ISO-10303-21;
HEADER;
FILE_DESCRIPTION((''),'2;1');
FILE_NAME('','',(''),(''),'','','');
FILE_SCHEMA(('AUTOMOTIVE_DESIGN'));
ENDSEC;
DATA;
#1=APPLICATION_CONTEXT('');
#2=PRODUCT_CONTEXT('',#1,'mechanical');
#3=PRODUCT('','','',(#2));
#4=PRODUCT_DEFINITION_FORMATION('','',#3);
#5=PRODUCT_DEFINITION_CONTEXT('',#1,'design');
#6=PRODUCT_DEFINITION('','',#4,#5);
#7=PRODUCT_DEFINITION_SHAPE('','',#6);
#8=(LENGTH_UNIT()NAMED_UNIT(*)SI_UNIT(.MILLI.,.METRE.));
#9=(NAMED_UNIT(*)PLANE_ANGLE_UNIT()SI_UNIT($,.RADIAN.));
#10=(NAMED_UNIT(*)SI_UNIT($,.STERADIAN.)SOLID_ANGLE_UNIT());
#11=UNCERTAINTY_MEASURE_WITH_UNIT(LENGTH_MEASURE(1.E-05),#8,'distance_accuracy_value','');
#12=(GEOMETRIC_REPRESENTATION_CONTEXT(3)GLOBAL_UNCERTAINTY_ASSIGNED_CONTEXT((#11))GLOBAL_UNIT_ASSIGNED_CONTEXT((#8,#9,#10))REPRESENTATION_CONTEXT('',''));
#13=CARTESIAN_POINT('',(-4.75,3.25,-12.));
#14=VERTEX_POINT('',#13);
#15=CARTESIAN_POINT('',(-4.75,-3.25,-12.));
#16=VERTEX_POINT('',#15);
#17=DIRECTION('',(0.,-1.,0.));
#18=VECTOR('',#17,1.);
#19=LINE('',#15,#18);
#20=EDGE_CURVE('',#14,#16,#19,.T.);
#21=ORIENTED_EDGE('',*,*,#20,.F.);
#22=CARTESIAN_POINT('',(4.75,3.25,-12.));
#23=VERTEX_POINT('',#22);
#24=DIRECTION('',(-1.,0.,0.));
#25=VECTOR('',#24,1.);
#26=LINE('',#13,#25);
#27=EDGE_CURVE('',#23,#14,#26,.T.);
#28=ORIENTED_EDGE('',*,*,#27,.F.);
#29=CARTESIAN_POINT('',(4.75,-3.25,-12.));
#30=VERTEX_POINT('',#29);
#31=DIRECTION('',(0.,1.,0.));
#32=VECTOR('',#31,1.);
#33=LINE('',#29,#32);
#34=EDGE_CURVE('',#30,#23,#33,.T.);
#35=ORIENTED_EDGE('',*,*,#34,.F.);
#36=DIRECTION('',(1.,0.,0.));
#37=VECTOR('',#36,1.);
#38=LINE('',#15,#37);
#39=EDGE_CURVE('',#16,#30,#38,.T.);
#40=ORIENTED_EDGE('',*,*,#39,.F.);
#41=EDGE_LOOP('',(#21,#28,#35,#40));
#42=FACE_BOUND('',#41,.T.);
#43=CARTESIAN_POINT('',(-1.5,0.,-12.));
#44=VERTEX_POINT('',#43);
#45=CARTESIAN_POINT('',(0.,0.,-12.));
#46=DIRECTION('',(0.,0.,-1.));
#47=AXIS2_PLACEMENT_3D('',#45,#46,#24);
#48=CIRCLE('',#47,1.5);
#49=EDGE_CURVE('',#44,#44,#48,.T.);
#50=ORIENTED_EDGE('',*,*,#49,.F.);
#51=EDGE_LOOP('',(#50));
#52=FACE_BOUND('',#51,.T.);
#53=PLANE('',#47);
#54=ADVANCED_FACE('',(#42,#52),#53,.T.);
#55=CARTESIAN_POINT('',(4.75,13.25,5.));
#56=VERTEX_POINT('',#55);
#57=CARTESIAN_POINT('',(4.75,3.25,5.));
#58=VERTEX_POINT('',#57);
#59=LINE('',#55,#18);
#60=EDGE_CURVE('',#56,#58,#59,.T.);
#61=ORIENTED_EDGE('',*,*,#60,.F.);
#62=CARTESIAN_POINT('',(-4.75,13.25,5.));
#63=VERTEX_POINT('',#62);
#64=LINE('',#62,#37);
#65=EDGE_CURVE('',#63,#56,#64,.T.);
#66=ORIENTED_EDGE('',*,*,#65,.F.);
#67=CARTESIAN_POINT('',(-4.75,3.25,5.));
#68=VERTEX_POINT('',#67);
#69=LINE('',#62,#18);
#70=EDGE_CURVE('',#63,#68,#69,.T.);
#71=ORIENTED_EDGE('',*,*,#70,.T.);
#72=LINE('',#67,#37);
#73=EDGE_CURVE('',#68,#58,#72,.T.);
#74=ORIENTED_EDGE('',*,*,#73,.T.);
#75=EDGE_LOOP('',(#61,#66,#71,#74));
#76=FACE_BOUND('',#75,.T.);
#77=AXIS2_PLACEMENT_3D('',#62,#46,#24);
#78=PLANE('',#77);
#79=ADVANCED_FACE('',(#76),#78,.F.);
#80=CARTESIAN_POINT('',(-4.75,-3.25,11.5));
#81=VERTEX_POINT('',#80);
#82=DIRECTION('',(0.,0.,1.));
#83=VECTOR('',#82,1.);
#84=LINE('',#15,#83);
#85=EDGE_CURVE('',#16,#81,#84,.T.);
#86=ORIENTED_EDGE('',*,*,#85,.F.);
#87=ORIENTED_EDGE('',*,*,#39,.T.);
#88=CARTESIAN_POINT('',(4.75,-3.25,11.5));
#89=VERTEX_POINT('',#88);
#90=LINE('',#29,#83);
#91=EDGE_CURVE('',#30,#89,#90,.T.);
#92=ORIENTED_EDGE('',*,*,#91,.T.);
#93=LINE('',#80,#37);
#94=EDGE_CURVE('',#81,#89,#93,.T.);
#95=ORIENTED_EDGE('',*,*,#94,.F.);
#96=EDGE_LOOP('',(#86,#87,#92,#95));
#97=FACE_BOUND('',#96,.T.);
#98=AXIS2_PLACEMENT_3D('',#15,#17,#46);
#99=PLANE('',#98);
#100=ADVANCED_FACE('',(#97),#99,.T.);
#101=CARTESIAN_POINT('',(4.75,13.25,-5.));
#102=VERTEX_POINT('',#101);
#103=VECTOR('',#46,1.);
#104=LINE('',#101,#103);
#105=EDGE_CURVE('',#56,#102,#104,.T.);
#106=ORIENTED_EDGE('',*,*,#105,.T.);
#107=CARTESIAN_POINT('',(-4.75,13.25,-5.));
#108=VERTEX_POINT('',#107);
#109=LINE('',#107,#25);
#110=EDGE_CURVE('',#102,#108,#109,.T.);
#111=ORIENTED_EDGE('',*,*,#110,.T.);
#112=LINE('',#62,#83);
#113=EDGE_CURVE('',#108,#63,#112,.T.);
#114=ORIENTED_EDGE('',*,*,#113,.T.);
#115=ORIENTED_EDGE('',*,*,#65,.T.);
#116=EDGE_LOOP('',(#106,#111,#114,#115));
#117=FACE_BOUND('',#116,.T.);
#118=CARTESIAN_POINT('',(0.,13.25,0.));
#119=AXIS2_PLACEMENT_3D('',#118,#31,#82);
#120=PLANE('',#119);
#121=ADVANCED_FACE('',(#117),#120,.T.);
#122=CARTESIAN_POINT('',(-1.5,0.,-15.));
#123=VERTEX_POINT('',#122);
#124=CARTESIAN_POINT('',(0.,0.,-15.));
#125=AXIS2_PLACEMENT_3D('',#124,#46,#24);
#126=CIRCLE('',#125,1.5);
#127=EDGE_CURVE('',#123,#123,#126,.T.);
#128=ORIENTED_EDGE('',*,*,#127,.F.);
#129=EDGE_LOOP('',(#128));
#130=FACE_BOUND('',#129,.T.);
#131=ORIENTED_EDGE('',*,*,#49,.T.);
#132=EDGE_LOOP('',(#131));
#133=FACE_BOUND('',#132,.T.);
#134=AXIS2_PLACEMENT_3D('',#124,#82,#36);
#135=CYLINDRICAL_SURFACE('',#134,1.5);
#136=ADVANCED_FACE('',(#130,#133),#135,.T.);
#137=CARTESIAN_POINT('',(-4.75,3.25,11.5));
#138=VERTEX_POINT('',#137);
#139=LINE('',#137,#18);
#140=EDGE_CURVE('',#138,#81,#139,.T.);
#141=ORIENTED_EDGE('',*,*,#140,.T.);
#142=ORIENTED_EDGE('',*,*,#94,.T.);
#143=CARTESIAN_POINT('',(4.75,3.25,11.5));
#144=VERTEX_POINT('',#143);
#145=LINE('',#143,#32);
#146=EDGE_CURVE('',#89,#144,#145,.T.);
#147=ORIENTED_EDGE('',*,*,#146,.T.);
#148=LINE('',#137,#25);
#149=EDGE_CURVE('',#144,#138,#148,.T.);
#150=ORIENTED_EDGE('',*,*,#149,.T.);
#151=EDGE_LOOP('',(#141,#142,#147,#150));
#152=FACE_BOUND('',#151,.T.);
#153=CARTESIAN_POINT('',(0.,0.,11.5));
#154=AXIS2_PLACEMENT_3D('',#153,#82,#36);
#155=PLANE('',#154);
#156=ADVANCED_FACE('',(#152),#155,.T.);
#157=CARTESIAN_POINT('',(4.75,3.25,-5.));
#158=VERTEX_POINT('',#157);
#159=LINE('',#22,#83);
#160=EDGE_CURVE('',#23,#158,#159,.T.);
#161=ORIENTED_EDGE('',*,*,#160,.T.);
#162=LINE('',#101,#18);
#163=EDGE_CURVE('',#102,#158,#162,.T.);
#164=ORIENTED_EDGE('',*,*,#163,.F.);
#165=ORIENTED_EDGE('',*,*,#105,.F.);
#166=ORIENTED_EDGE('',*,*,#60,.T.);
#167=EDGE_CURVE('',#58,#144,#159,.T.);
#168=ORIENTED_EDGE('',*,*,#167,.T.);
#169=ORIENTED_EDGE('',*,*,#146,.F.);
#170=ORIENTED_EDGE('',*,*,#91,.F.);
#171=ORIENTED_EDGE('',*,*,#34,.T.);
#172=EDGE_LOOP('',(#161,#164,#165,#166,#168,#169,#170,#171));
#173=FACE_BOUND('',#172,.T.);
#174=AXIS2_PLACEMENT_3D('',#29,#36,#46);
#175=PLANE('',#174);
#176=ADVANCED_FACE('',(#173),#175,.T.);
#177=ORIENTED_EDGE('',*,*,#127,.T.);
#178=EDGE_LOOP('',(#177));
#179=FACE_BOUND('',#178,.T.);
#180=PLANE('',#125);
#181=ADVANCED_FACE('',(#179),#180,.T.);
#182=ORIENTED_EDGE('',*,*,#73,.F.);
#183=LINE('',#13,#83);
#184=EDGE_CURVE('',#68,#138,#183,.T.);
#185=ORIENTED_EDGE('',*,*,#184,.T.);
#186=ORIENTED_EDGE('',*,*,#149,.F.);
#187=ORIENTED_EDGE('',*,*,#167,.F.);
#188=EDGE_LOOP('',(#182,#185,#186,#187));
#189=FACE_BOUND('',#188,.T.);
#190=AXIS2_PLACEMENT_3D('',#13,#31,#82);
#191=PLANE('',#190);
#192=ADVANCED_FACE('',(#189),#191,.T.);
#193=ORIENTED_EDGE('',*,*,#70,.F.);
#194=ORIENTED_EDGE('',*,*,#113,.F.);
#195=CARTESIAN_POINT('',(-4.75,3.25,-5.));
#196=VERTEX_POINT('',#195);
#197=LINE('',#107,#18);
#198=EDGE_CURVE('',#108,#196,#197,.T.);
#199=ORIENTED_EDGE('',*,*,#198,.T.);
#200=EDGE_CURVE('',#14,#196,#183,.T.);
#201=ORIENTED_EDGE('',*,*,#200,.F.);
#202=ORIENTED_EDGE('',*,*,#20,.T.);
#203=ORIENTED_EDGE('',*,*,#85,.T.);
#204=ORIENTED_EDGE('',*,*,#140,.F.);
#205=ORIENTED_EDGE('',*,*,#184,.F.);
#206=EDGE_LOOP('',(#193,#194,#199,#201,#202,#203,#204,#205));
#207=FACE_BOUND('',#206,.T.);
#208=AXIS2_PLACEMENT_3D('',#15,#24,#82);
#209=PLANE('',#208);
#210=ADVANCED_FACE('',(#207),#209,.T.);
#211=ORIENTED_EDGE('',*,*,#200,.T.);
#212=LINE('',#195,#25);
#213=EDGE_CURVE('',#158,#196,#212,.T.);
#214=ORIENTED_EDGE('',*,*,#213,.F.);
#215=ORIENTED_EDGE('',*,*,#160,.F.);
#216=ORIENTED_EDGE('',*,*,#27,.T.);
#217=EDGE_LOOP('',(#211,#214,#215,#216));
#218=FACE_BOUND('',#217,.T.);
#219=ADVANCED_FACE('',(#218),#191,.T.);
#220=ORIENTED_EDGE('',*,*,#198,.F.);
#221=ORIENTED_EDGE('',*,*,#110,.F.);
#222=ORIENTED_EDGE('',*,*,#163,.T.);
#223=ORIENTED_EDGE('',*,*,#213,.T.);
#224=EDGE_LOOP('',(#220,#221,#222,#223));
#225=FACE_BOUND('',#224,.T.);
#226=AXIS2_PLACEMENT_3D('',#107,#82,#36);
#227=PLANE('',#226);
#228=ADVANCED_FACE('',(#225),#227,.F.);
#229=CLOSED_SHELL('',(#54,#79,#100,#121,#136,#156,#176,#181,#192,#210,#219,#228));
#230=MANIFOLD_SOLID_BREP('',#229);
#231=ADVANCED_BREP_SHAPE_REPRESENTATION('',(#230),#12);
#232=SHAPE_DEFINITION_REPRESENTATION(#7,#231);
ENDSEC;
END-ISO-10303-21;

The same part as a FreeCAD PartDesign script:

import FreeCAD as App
import Part
import Sketcher
from FreeCAD import Vector

doc = App.newDocument("Part")
body = doc.addObject("PartDesign::Body", "Body")

# Sketch on XY plane
sketch1 = body.newObject("Sketcher::SketchObject", "Sketch")
sketch1.AttachmentSupport = (doc.getObject("XY_Plane"), [""])
sketch1.MapMode = "FlatFace"
sketch1.addGeometry(Part.LineSegment(Vector(-4.75, 3.25, 0), Vector(-4.75, -3.25, 0)), False)
sketch1.addGeometry(Part.LineSegment(Vector(-4.75, -3.25, 0), Vector(4.75, -3.25, 0)), False)
sketch1.addGeometry(Part.LineSegment(Vector(4.75, -3.25, 0), Vector(4.75, 3.25, 0)), False)
sketch1.addGeometry(Part.LineSegment(Vector(4.75, 3.25, 0), Vector(-4.75, 3.25, 0)), False)
sketch1.addConstraint(Sketcher.Constraint("Coincident", 0, 2, 1, 1))
sketch1.addConstraint(Sketcher.Constraint("Coincident", 1, 2, 2, 1))
sketch1.addConstraint(Sketcher.Constraint("Coincident", 2, 2, 3, 1))
sketch1.addConstraint(Sketcher.Constraint("Coincident", 3, 2, 0, 1))
sketch1.addConstraint(Sketcher.Constraint("Vertical", 0))
sketch1.addConstraint(Sketcher.Constraint("Horizontal", 1))
sketch1.addConstraint(Sketcher.Constraint("Vertical", 2))
sketch1.addConstraint(Sketcher.Constraint("Horizontal", 3))
sketch1.addConstraint(Sketcher.Constraint("Symmetric", 0, 2, 2, 2, -1, 1))
sketch1.addConstraint(Sketcher.Constraint("DistanceX", 1, 1, 1, 2, 9.5))
sketch1.addConstraint(Sketcher.Constraint("DistanceY", 0, 2, 0, 1, 6.5))
pad1 = body.newObject("PartDesign::Pad", "Pad")
pad1.Profile = sketch1
pad1.Type = "TwoLengths"
pad1.Length = 11
pad1.Length2 = 12

# Sketch on XZ plane
sketch2 = body.newObject("Sketcher::SketchObject", "Sketch001")
sketch2.AttachmentSupport = (doc.getObject("XZ_Plane"), [""])
sketch2.MapMode = "FlatFace"
sketch2.AttachmentOffset = App.Placement(Vector(0, 0, -3.25), App.Rotation())
sketch2.addGeometry(Part.LineSegment(Vector(-4.75, -5, 0), Vector(-4.75, 5, 0)), False)
sketch2.addGeometry(Part.LineSegment(Vector(-4.75, 5, 0), Vector(4.75, 5, 0)), False)
sketch2.addGeometry(Part.LineSegment(Vector(4.75, 5, 0), Vector(4.75, -5, 0)), False)
sketch2.addGeometry(Part.LineSegment(Vector(4.75, -5, 0), Vector(-4.75, -5, 0)), False)
sketch2.addConstraint(Sketcher.Constraint("Coincident", 0, 2, 1, 1))
sketch2.addConstraint(Sketcher.Constraint("Coincident", 1, 2, 2, 1))
sketch2.addConstraint(Sketcher.Constraint("Coincident", 2, 2, 3, 1))
sketch2.addConstraint(Sketcher.Constraint("Coincident", 3, 2, 0, 1))
sketch2.addConstraint(Sketcher.Constraint("Vertical", 0))
sketch2.addConstraint(Sketcher.Constraint("Horizontal", 1))
sketch2.addConstraint(Sketcher.Constraint("Vertical", 2))
sketch2.addConstraint(Sketcher.Constraint("Horizontal", 3))
sketch2.addConstraint(Sketcher.Constraint("Symmetric", 0, 2, 2, 2, -1, 1))
sketch2.addConstraint(Sketcher.Constraint("DistanceY", 0, 1, 0, 2, 10.0))
sketch2.addConstraint(Sketcher.Constraint("DistanceX", 1, 1, 1, 2, 9.5))
pad2 = body.newObject("PartDesign::Pad", "Pad001")
pad2.Profile = sketch2
pad2.Length = 10
pad2.Reversed = True

# Sketch on XY plane
sketch3 = body.newObject("Sketcher::SketchObject", "Sketch002")
sketch3.AttachmentSupport = (doc.getObject("XY_Plane"), [""])
sketch3.MapMode = "FlatFace"
sketch3.AttachmentOffset = App.Placement(Vector(0, 0, -12), App.Rotation())
sketch3.addGeometry(Part.Circle(Vector(0, 0, 0), Vector(0, 0, 1), 1.5), False)
sketch3.addConstraint(Sketcher.Constraint("Coincident", 0, 3, -1, 1))
sketch3.addConstraint(Sketcher.Constraint("Diameter", 0, 3.0))
pad3 = body.newObject("PartDesign::Pad", "Pad002")
pad3.Profile = sketch3
pad3.Length = 3
pad3.Reversed = True

# Sketch on XY plane
sketch4 = body.newObject("Sketcher::SketchObject", "Sketch003")
sketch4.AttachmentSupport = (doc.getObject("XY_Plane"), [""])
sketch4.MapMode = "FlatFace"
sketch4.AttachmentOffset = App.Placement(Vector(0, 0, 11), App.Rotation())
sketch4.addGeometry(Part.LineSegment(Vector(-4.75, 3.25, 0), Vector(-4.75, -3.25, 0)), False)
sketch4.addGeometry(Part.LineSegment(Vector(-4.75, -3.25, 0), Vector(4.75, -3.25, 0)), False)
sketch4.addGeometry(Part.LineSegment(Vector(4.75, -3.25, 0), Vector(4.75, 3.25, 0)), False)
sketch4.addGeometry(Part.LineSegment(Vector(4.75, 3.25, 0), Vector(-4.75, 3.25, 0)), False)
sketch4.addConstraint(Sketcher.Constraint("Coincident", 0, 2, 1, 1))
sketch4.addConstraint(Sketcher.Constraint("Coincident", 1, 2, 2, 1))
sketch4.addConstraint(Sketcher.Constraint("Coincident", 2, 2, 3, 1))
sketch4.addConstraint(Sketcher.Constraint("Coincident", 3, 2, 0, 1))
sketch4.addConstraint(Sketcher.Constraint("Vertical", 0))
sketch4.addConstraint(Sketcher.Constraint("Horizontal", 1))
sketch4.addConstraint(Sketcher.Constraint("Vertical", 2))
sketch4.addConstraint(Sketcher.Constraint("Horizontal", 3))
sketch4.addConstraint(Sketcher.Constraint("Symmetric", 0, 2, 2, 2, -1, 1))
sketch4.addConstraint(Sketcher.Constraint("DistanceX", 1, 1, 1, 2, 9.5))
sketch4.addConstraint(Sketcher.Constraint("DistanceY", 0, 2, 0, 1, 6.5))
pad4 = body.newObject("PartDesign::Pad", "Pad003")
pad4.Profile = sketch4
pad4.Length = 0.5

doc.recompute()
